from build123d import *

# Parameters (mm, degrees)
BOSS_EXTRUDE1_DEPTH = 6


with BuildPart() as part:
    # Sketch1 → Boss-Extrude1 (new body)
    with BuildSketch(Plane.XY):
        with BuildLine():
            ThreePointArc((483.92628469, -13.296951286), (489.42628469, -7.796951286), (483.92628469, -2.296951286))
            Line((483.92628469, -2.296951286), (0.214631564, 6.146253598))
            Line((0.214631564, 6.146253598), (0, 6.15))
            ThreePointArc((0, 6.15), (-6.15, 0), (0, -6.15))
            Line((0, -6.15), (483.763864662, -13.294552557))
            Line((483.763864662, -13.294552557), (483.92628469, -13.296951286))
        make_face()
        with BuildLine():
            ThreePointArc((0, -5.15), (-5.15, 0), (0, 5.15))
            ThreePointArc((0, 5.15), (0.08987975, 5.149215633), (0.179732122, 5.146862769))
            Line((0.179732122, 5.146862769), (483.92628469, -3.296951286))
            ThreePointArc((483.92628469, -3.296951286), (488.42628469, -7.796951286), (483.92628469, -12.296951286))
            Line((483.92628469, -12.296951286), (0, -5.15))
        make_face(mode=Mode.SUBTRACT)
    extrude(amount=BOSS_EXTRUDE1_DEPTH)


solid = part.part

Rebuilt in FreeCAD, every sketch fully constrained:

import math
import FreeCAD as App
import Part
import Sketcher
from FreeCAD import Vector
Q = App.Units.Quantity

doc = App.newDocument("Part")
body = doc.addObject("PartDesign::Body", "Body")

# Sketch on XY plane
sketch1 = body.newObject("Sketcher::SketchObject", "Sketch")
sketch1.AttachmentSupport = (doc.getObject("XY_Plane"), [""])
sketch1.MapMode = "FlatFace"
sketch1.addGeometry(Part.ArcOfCircle(Part.Circle(Vector(483.926285, -7.796951, 0), Vector(0, 0, 1), 5.5), math.radians(-90), math.radians(90)), False)
sketch1.addGeometry(Part.LineSegment(Vector(483.926285, -2.296951, 0), Vector(0.214632, 6.146254, 0)), False)
sketch1.addGeometry(Part.LineSegment(Vector(0.214632, 6.146254, 0), Vector(0, 6.15, 0)), False)
sketch1.addGeometry(Part.ArcOfCircle(Part.Circle(Vector(0, 0, 0), Vector(0, 0, 1), 6.15), math.radians(90), math.radians(270)), False)
sketch1.addGeometry(Part.LineSegment(Vector(0, -6.15, 0), Vector(483.763865, -13.294553, 0)), False)
sketch1.addGeometry(Part.LineSegment(Vector(483.763865, -13.294553, 0), Vector(483.926285, -13.296951, 0)), False)
sketch1.addGeometry(Part.LineSegment(Vector(483.926285, -12.296951, 0), Vector(0, -5.15, 0)), False)
sketch1.addGeometry(Part.ArcOfCircle(Part.Circle(Vector(0, 0, 0), Vector(0, 0, 1), 5.15), math.radians(90), math.radians(270)), False)
sketch1.addGeometry(Part.ArcOfCircle(Part.Circle(Vector(0, 0.000003, 0), Vector(0, 0, 1), 5.149997), math.radians(88.000002), math.radians(90.000001)), False)
sketch1.addGeometry(Part.LineSegment(Vector(0.179732, 5.146863, 0), Vector(483.926285, -3.296951, 0)), False)
sketch1.addGeometry(Part.ArcOfCircle(Part.Circle(Vector(483.926285, -7.796951, 0), Vector(0, 0, 1), 4.5), math.radians(-90), math.radians(90)), False)
sketch1.addConstraint(Sketcher.Constraint("Coincident", 0, 2, 1, 1))
sketch1.addConstraint(Sketcher.Constraint("Coincident", 1, 2, 2, 1))
sketch1.addConstraint(Sketcher.Constraint("Coincident", 2, 2, 3, 1))
sketch1.addConstraint(Sketcher.Constraint("Coincident", 3, 2, 4, 1))
sketch1.addConstraint(Sketcher.Constraint("Coincident", 4, 2, 5, 1))
sketch1.addConstraint(Sketcher.Constraint("Coincident", 5, 2, 0, 1))
sketch1.addConstraint(Sketcher.Constraint("Coincident", 6, 2, 7, 2))
sketch1.addConstraint(Sketcher.Constraint("Tangent", 7, 1, 8, 2))
sketch1.addConstraint(Sketcher.Constraint("Coincident", 8, 1, 9, 1))
sketch1.addConstraint(Sketcher.Constraint("Coincident", 9, 2, 10, 2))
sketch1.addConstraint(Sketcher.Constraint("Coincident", 10, 1, 6, 1))
sketch1.addConstraint(Sketcher.Constraint("Coincident", 3, 3, -1, 1))
sketch1.addConstraint(Sketcher.Constraint("Coincident", 7, 3, -1, 1))
sketch1.addConstraint(Sketcher.Constraint("Coincident", 10, 3, 0, 3))
sketch1.addConstraint(Sketcher.Constraint("PointOnObject", 2, 2, -2))
sketch1.addConstraint(Sketcher.Constraint("PointOnObject", 3, 2, -2))
sketch1.addConstraint(Sketcher.Constraint("PointOnObject", 6, 2, -2))
sketch1.addConstraint(Sketcher.Constraint("PointOnObject", 7, 1, -2))
sketch1.addConstraint(Sketcher.Constraint("Parallel", 1, 2))
sketch1.addConstraint(Sketcher.Constraint("Parallel", 4, 5))
sketch1.addConstraint(Sketcher.Constraint("Parallel", 4, 6))
sketch1.addConstraint(Sketcher.Constraint("Parallel", 1, 9))
sketch1.addConstraint(Sketcher.Constraint("Vertical", 10, 3, 0, 2))
sketch1.addConstraint(Sketcher.Constraint("Vertical", 0, 2, 5, 2))
sketch1.addConstraint(Sketcher.Constraint("Vertical", 5, 2, 9, 2))
sketch1.addConstraint(Sketcher.Constraint("Vertical", 9, 2, 10, 1))
sketch1.addConstraint(Sketcher.Constraint("Radius", 0, Q("5.5 mm")))
sketch1.addConstraint(Sketcher.Constraint("Radius", 10, Q("4.5 mm")))
sketch1.addConstraint(Sketcher.Constraint("Angle", 1, Q("179.000002 deg")))
sketch1.addConstraint(Sketcher.Constraint("Radius", 3, Q("6.15 mm")))
sketch1.addConstraint(Sketcher.Constraint("Radius", 8, Q("5.149997 mm")))
sketch1.addConstraint(Sketcher.Constraint("DistanceY", 4, 2, 0, 3, Q("5.497601 mm")))
sketch1.addConstraint(Sketcher.Constraint("DistanceX", 8, 1, 1, 2, Q("0.034899 mm")))
sketch1.addConstraint(Sketcher.Constraint("Distance", 4, Q("483.81662 mm")))
pad1 = body.newObject("PartDesign::Pad", "Pad")
pad1.Profile = sketch1
pad1.Length = 6

doc.recompute()
